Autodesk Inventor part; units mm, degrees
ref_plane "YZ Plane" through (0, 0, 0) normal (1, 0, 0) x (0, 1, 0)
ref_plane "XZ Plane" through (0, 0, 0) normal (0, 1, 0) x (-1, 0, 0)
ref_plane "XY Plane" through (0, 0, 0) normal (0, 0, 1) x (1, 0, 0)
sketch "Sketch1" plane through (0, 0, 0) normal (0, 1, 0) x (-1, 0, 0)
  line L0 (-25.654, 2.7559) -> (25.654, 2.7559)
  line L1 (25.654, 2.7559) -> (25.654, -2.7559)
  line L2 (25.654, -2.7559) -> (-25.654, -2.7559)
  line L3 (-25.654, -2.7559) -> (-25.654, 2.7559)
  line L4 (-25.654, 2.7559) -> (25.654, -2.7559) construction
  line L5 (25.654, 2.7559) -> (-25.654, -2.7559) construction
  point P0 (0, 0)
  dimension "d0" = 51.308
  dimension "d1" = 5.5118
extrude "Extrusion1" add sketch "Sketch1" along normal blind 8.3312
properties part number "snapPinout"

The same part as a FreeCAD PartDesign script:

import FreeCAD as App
import Part
import Sketcher
from FreeCAD import Vector
Q = App.Units.Quantity

doc = App.newDocument("Part")
body = doc.addObject("PartDesign::Body", "Body")

# Sketch on XZ plane
sketch1 = body.newObject("Sketcher::SketchObject", "Sketch")
sketch1.AttachmentSupport = (doc.getObject("XZ_Plane"), [""])
sketch1.MapMode = "FlatFace"
sketch1.addGeometry([
    Part.LineSegment(Vector(-25.654, 2.7559, 0), Vector(25.654, 2.7559, 0)),
    Part.LineSegment(Vector(25.654, 2.7559, 0), Vector(25.654, -2.7559, 0)),
    Part.LineSegment(Vector(25.654, -2.7559, 0), Vector(-25.654, -2.7559, 0)),
    Part.LineSegment(Vector(-25.654, -2.7559, 0), Vector(-25.654, 2.7559, 0)),
], False)
sketch1.addConstraint([
    Sketcher.Constraint("Coincident", 0, 2, 1, 1),
    Sketcher.Constraint("Coincident", 1, 2, 2, 1),
    Sketcher.Constraint("Coincident", 2, 2, 3, 1),
    Sketcher.Constraint("Coincident", 3, 2, 0, 1),
    Sketcher.Constraint("Horizontal", 0),
    Sketcher.Constraint("Vertical", 1),
    Sketcher.Constraint("Horizontal", 2),
    Sketcher.Constraint("Vertical", 3),
    Sketcher.Constraint("Symmetric", 0, 2, 2, 2, -1, 1),
    Sketcher.Constraint("DistanceX", 0, 1, 0, 2, Q("2.02 in")),
    Sketcher.Constraint("DistanceY", 1, 2, 1, 1, Q("0.217 in")),
])
pad1 = body.newObject("PartDesign::Pad", "Pad")
pad1.Profile = sketch1
pad1.Length = Q("0.328 in")
pad1.Reversed = True

doc.recompute()
